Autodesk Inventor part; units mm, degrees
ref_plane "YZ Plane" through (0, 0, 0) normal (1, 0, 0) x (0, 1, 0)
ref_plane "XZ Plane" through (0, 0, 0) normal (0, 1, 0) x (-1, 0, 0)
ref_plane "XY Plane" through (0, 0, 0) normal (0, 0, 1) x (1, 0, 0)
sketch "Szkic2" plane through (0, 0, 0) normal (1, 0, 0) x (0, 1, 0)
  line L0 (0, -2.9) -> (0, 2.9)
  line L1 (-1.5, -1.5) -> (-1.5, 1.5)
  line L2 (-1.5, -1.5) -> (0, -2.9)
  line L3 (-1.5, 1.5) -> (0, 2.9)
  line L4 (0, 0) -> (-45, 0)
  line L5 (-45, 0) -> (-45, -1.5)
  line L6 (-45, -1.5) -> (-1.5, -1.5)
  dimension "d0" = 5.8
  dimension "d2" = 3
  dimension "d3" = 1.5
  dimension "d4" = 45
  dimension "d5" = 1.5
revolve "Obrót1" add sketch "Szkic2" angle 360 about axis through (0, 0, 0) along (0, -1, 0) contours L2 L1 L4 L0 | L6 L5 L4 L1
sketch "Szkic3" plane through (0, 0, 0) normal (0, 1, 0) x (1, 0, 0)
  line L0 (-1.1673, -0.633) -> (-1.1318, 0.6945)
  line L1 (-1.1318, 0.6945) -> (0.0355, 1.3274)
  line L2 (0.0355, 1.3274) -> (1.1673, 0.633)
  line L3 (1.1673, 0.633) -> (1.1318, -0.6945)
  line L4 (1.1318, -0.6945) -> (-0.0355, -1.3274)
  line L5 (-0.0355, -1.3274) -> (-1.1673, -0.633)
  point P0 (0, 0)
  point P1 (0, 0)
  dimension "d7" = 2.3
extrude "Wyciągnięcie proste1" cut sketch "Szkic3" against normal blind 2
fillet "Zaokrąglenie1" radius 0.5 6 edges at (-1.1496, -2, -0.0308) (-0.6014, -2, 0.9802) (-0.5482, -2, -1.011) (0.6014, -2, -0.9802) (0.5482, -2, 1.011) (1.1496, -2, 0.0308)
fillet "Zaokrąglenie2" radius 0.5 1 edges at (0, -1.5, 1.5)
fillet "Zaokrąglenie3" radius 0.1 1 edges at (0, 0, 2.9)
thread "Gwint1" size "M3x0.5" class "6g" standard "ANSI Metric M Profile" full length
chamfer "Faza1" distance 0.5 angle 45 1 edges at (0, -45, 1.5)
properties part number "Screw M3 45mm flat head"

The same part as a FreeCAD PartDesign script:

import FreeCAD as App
import Part
import Sketcher
from FreeCAD import Vector
Q = App.Units.Quantity


def edges_at(feature, points):
    """Names of the edges that pass closest to the given points."""
    edges = feature.Shape.Edges
    near = lambda p: min(range(len(edges)), key=lambda i: edges[i].distToShape(Part.Vertex(*p))[0])
    return sorted({f"Edge{near(p) + 1}" for p in points})

doc = App.newDocument("Part")
params = doc.addObject("Spreadsheet::Sheet", "Params")
for row, (alias, value) in enumerate([
    ("sketch1_width", "45 mm"),
    ("sketch1_height", "1.5 mm"),
    ("sketch1_height2", "2.9 mm"),
    ("revolution_angle", "360 deg"),
    ("pocket1_length", "2 mm"),
    ("fillet_radius", "0.5 mm"),
    ("fillet2_radius", "0.5 mm"),
    ("fillet3_radius", "0.1 mm"),
    ("chamfer_size", "0.5 mm"),
], start=1):
    params.set(f"A{row}", alias)
    params.set(f"B{row}", "=" + value)
    params.setAlias(f"B{row}", alias)

body = doc.addObject("PartDesign::Body", "Body")

# Sketch on YZ plane
sketch1 = doc.addObject("Sketcher::SketchObject", "Sketch")
body.addObject(sketch1)
sketch1.AttachmentSupport = (doc.YZ_Plane, [""])
sketch1.MapMode = "FlatFace"
sketch1.addGeometry(Part.LineSegment(Vector(-1.5, -1.5, 0), Vector(0, -2.9, 0)), False)
sketch1.addGeometry(Part.LineSegment(Vector(0, -2.9, 0), Vector(0, 0, 0)), False)
sketch1.addGeometry(Part.LineSegment(Vector(0, 0, 0), Vector(-45, 0, 0)), False)
sketch1.addGeometry(Part.LineSegment(Vector(-45, 0, 0), Vector(-45, -1.5, 0)), False)
sketch1.addGeometry(Part.LineSegment(Vector(-45, -1.5, 0), Vector(-1.5, -1.5, 0)), False)
sketch1.addConstraint(Sketcher.Constraint("Coincident", 0, 2, 1, 1))
sketch1.addConstraint(Sketcher.Constraint("Coincident", 1, 2, 2, 1))
sketch1.addConstraint(Sketcher.Constraint("Coincident", 2, 2, 3, 1))
sketch1.addConstraint(Sketcher.Constraint("Coincident", 3, 2, 4, 1))
sketch1.addConstraint(Sketcher.Constraint("Coincident", 4, 2, 0, 1))
sketch1.addConstraint(Sketcher.Constraint("Vertical", 1))
sketch1.addConstraint(Sketcher.Constraint("Horizontal", 2))
sketch1.addConstraint(Sketcher.Constraint("Vertical", 3))
sketch1.addConstraint(Sketcher.Constraint("Horizontal", 4))
sketch1.addConstraint(Sketcher.Constraint("Coincident", 1, 2, -1, 1))
sketch1.addConstraint(Sketcher.Constraint("DistanceX", 2, 2, 2, 1, Q("45 mm")))
sketch1.addConstraint(Sketcher.Constraint("DistanceY", 3, 2, 3, 1, Q("1.5 mm")))
sketch1.addConstraint(Sketcher.Constraint("DistanceX", 4, 2, -1, 1, Q("1.5 mm")))
sketch1.addConstraint(Sketcher.Constraint("DistanceY", 1, 1, 1, 2, Q("2.9 mm")))
sketch1.setExpression("Constraints[10]", "Params.sketch1_width")
sketch1.setExpression("Constraints[11]", "Params.sketch1_height")
sketch1.setExpression("Constraints[13]", "Params.sketch1_height2")
revolution = doc.addObject("PartDesign::Revolution", "Revolution")
body.addObject(revolution)
revolution.Profile = sketch1
revolution.ReferenceAxis = (sketch1, ["H_Axis"])
revolution.setExpression("Angle", "Params.revolution_angle")

# Sketch on XZ plane
sketch2 = doc.addObject("Sketcher::SketchObject", "Sketch001")
body.addObject(sketch2)
sketch2.AttachmentSupport = (doc.XZ_Plane, [""])
sketch2.MapMode = "FlatFace"
sketch2.addGeometry(Part.LineSegment(Vector(-1.1318, -0.6945, 0), Vector(-1.1673, 0.633, 0)), False)
sketch2.addGeometry(Part.LineSegment(Vector(-1.1673, 0.633, 0), Vector(-0.0355, 1.3274, 0)), False)
sketch2.addGeometry(Part.LineSegment(Vector(-0.0355, 1.3274, 0), Vector(1.1318, 0.6945, 0)), False)
sketch2.addGeometry(Part.LineSegment(Vector(1.1318, 0.6945, 0), Vector(1.1673, -0.633, 0)), False)
sketch2.addGeometry(Part.LineSegment(Vector(1.1673, -0.633, 0), Vector(0.0355, -1.3274, 0)), False)
sketch2.addGeometry(Part.LineSegment(Vector(0.0355, -1.3274, 0), Vector(-1.1318, -0.6945, 0)), False)
sketch2.addConstraint(Sketcher.Constraint("Coincident", 0, 2, 1, 1))
sketch2.addConstraint(Sketcher.Constraint("Coincident", 1, 2, 2, 1))
sketch2.addConstraint(Sketcher.Constraint("Coincident", 2, 2, 3, 1))
sketch2.addConstraint(Sketcher.Constraint("Coincident", 3, 2, 4, 1))
sketch2.addConstraint(Sketcher.Constraint("Coincident", 4, 2, 5, 1))
sketch2.addConstraint(Sketcher.Constraint("Coincident", 5, 2, 0, 1))
sketch2.addConstraint(Sketcher.Constraint("Symmetric", 0, 2, 3, 2, -1, 1))
sketch2.addConstraint(Sketcher.Constraint("Symmetric", 1, 2, 4, 2, -1, 1))
sketch2.addConstraint(Sketcher.Constraint("Symmetric", 2, 2, 5, 2, -1, 1))
sketch2.addConstraint(Sketcher.Constraint("Equal", 0, 1))
sketch2.addConstraint(Sketcher.Constraint("Equal", 1, 2))
sketch2.addConstraint(Sketcher.Constraint("Angle", 1, Q("31.5306 deg")))
sketch2.addConstraint(Sketcher.Constraint("Distance", 0, Q("1.328 mm")))
sketch2.addConstraint(Sketcher.Constraint("DistanceY", -1, 1, 0, 2, Q("0.633 mm")))
sketch2.addConstraint(Sketcher.Constraint("DistanceY", 2, 2, 1, 2, Q("0.633 mm")))
pocket1 = doc.addObject("PartDesign::Pocket", "Pocket")
body.addObject(pocket1)
pocket1.Profile = sketch2
pocket1.setExpression("Length", "Params.pocket1_length")
pocket1.Reversed = True
doc.recompute()

fillet = doc.addObject("PartDesign::Fillet", "Fillet")
body.addObject(fillet)
fillet.Base = (pocket1, edges_at(pocket1, [
    (-1.15, -2, -0.031),
    (-0.601, -2, 0.98),
    (-0.548, -2, -1.011),
    (0.601, -2, -0.98),
    (0.548, -2, 1.011),
    (1.15, -2, 0.031),
]))
fillet.setExpression("Radius", "Params.fillet_radius")
doc.recompute()

fillet2 = doc.addObject("PartDesign::Fillet", "Fillet001")
body.addObject(fillet2)
fillet2.Base = (fillet, edges_at(fillet, [(0, -1.5, 1.5)]))
fillet2.setExpression("Radius", "Params.fillet2_radius")
doc.recompute()

fillet3 = doc.addObject("PartDesign::Fillet", "Fillet002")
body.addObject(fillet3)
fillet3.Base = (fillet2, edges_at(fillet2, [(0, 0, 2.9)]))
fillet3.setExpression("Radius", "Params.fillet3_radius")
doc.recompute()

chamfer = doc.addObject("PartDesign::Chamfer", "Chamfer")
body.addObject(chamfer)
chamfer.Base = (fillet3, edges_at(fillet3, [(0, -45, 1.5)]))
chamfer.setExpression("Size", "Params.chamfer_size")

doc.recompute()
